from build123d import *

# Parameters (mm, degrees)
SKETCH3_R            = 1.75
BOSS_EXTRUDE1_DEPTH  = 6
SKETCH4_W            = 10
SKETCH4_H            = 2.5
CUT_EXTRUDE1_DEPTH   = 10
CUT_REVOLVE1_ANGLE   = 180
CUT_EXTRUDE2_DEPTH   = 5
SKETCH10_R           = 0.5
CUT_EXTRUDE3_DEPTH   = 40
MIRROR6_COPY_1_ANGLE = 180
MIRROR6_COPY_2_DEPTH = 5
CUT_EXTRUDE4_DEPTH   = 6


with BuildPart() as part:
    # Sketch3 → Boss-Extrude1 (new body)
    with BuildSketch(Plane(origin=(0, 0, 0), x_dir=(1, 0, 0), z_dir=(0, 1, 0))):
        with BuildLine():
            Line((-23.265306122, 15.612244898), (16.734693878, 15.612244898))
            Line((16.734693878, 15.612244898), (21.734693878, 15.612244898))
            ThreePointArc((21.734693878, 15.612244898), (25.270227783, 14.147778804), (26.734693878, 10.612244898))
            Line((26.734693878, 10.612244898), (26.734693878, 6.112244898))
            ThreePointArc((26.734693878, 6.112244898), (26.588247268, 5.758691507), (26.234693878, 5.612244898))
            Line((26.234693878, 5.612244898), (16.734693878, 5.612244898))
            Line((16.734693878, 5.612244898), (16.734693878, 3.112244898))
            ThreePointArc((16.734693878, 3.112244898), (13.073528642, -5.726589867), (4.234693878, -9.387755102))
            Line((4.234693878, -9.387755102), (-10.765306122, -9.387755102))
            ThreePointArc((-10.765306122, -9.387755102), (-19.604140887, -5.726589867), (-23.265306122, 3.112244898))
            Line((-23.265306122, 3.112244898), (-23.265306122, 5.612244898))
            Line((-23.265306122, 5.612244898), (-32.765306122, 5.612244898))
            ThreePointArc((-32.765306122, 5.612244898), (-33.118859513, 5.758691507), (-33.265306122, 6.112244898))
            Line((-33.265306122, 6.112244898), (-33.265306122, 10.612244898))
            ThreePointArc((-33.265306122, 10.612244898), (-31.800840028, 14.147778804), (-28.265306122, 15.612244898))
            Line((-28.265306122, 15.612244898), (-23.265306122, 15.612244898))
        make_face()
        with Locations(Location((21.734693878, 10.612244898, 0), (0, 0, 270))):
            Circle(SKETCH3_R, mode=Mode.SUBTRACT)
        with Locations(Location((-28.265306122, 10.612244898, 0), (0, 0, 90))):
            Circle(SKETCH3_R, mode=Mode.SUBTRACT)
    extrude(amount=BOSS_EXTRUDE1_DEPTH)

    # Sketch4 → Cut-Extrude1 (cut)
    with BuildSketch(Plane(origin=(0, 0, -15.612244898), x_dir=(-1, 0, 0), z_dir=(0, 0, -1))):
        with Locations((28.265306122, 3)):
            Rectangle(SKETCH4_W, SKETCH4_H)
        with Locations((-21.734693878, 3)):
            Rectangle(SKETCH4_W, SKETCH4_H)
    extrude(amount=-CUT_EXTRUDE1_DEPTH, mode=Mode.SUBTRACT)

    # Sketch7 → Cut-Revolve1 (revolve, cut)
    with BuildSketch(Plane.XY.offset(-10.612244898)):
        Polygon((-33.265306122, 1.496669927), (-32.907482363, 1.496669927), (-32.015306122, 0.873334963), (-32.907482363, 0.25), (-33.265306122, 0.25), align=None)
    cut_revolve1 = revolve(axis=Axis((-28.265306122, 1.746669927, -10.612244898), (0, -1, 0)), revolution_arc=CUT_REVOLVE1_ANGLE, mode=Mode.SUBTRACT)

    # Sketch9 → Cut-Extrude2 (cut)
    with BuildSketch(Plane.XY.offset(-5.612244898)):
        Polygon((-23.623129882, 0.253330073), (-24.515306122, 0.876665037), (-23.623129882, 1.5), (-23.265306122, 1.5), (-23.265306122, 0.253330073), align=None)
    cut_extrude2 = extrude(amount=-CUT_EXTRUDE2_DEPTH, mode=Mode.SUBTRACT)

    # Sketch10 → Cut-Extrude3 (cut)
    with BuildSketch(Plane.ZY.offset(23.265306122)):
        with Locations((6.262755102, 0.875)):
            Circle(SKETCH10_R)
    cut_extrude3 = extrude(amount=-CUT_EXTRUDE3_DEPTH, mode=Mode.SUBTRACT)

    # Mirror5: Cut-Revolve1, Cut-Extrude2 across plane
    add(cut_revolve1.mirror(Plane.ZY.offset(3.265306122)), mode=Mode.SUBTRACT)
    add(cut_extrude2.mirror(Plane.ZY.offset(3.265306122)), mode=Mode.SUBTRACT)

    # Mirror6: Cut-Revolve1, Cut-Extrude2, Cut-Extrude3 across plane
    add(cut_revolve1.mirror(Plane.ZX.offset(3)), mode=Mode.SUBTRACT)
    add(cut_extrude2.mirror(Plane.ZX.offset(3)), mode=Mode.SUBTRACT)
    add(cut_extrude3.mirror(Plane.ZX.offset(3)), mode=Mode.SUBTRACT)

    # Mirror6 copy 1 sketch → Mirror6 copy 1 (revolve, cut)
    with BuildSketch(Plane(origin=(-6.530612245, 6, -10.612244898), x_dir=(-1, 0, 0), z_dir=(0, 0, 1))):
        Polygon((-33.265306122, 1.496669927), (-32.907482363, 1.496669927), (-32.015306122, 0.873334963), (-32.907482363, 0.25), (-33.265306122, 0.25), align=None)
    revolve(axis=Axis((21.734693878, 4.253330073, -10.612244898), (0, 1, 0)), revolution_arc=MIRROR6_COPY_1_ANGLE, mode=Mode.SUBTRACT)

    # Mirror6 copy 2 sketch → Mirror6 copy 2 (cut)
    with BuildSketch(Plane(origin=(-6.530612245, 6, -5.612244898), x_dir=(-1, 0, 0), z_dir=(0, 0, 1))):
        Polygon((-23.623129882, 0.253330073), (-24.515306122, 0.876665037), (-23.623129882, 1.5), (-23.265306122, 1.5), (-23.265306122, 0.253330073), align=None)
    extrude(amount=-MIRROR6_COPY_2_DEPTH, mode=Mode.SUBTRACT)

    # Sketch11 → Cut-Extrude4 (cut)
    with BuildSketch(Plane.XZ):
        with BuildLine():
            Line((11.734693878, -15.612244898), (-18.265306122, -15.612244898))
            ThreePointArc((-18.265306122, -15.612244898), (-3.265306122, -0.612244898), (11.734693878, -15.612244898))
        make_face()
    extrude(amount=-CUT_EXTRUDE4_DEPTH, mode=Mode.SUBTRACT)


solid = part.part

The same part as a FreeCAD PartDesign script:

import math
import FreeCAD as App
import Part
import Sketcher
Q = App.Units.Quantity

doc = App.newDocument("Part")
body = doc.addObject("PartDesign::Body", "Body")

# Sketch on XZ plane
sketch1 = doc.addObject("Sketcher::SketchObject", "Sketch")
body.addObject(sketch1)
sketch1.AttachmentSupport = (doc.XZ_Plane, [""])
sketch1.MapMode = "FlatFace"
sketch1.addGeometry(Part.ArcOfCircle(Part.Circle(App.Vector(21.734694, -10.612245, 0), App.Vector(0, 0, 1), 5), math.radians(-90), math.radians(0)), False)
sketch1.addGeometry(Part.LineSegment(App.Vector(21.734694, -15.612245, 0), App.Vector(-28.265306, -15.612245, 0)), False)
sketch1.addGeometry(Part.ArcOfCircle(Part.Circle(App.Vector(-28.265306, -10.612245, 0), App.Vector(0, 0, 1), 5), math.radians(180), math.radians(270)), False)
sketch1.addGeometry(Part.LineSegment(App.Vector(-33.265306, -10.612245, 0), App.Vector(-33.265306, -6.112245, 0)), False)
sketch1.addGeometry(Part.ArcOfCircle(Part.Circle(App.Vector(-32.765306, -6.112245, 0), App.Vector(0, 0, 1), 0.5), math.radians(90), math.radians(180)), False)
sketch1.addGeometry(Part.LineSegment(App.Vector(-32.765306, -5.612245, 0), App.Vector(-23.265306, -5.612245, 0)), False)
sketch1.addGeometry(Part.LineSegment(App.Vector(-23.265306, -5.612245, 0), App.Vector(-23.265306, -3.112245, 0)), False)
sketch1.addGeometry(Part.ArcOfCircle(Part.Circle(App.Vector(-10.765306, -3.112245, 0), App.Vector(0, 0, 1), 12.5), math.radians(90), math.radians(180)), False)
sketch1.addGeometry(Part.LineSegment(App.Vector(-10.765306, 9.387755, 0), App.Vector(4.234694, 9.387755, 0)), False)
sketch1.addGeometry(Part.ArcOfCircle(Part.Circle(App.Vector(4.234694, -3.112245, 0), App.Vector(0, 0, 1), 12.5), math.radians(0), math.radians(90)), False)
sketch1.addGeometry(Part.LineSegment(App.Vector(16.734694, -3.112245, 0), App.Vector(16.734694, -5.612245, 0)), False)
sketch1.addGeometry(Part.LineSegment(App.Vector(16.734694, -5.612245, 0), App.Vector(26.234694, -5.612245, 0)), False)
sketch1.addGeometry(Part.ArcOfCircle(Part.Circle(App.Vector(26.234694, -6.112245, 0), App.Vector(0, 0, 1), 0.5), math.radians(0), math.radians(90)), False)
sketch1.addGeometry(Part.LineSegment(App.Vector(26.734694, -6.112245, 0), App.Vector(26.734694, -10.612245, 0)), False)
sketch1.addGeometry(Part.Circle(App.Vector(21.734694, -10.612245, 0), App.Vector(0, 0, 1), 1.75), False)
sketch1.addGeometry(Part.Circle(App.Vector(-28.265306, -10.612245, 0), App.Vector(0, 0, 1), 1.75), False)
sketch1.addConstraint(Sketcher.Constraint("Tangent", 0, 1, 1, 1))
sketch1.addConstraint(Sketcher.Constraint("Tangent", 1, 2, 2, 2))
sketch1.addConstraint(Sketcher.Constraint("Tangent", 2, 1, 3, 1))
sketch1.addConstraint(Sketcher.Constraint("Tangent", 3, 2, 4, 2))
sketch1.addConstraint(Sketcher.Constraint("Tangent", 4, 1, 5, 1))
sketch1.addConstraint(Sketcher.Constraint("Coincident", 5, 2, 6, 1))
sketch1.addConstraint(Sketcher.Constraint("Tangent", 6, 2, 7, 2))
sketch1.addConstraint(Sketcher.Constraint("Tangent", 7, 1, 8, 1))
sketch1.addConstraint(Sketcher.Constraint("Tangent", 8, 2, 9, 2))
sketch1.addConstraint(Sketcher.Constraint("Tangent", 9, 1, 10, 1))
sketch1.addConstraint(Sketcher.Constraint("Coincident", 10, 2, 11, 1))
sketch1.addConstraint(Sketcher.Constraint("Tangent", 11, 2, 12, 2))
sketch1.addConstraint(Sketcher.Constraint("Tangent", 12, 1, 13, 1))
sketch1.addConstraint(Sketcher.Constraint("Tangent", 13, 2, 0, 2))
sketch1.addConstraint(Sketcher.Constraint("Horizontal", 1))
sketch1.addConstraint(Sketcher.Constraint("Vertical", 3))
sketch1.addConstraint(Sketcher.Constraint("Horizontal", 5))
sketch1.addConstraint(Sketcher.Constraint("Vertical", 6))
sketch1.addConstraint(Sketcher.Constraint("Horizontal", 8))
sketch1.addConstraint(Sketcher.Constraint("Vertical", 10))
sketch1.addConstraint(Sketcher.Constraint("Horizontal", 11))
sketch1.addConstraint(Sketcher.Constraint("Vertical", 13))
sketch1.addConstraint(Sketcher.Constraint("Coincident", 14, 3, 0, 3))
sketch1.addConstraint(Sketcher.Constraint("Coincident", 15, 3, 2, 3))
sketch1.addConstraint(Sketcher.Constraint("Equal", 0, 2))
sketch1.addConstraint(Sketcher.Constraint("Equal", 7, 9))
sketch1.addConstraint(Sketcher.Constraint("Equal", 4, 12))
sketch1.addConstraint(Sketcher.Constraint("Equal", 14, 15))
sketch1.addConstraint(Sketcher.Constraint("Horizontal", 4, 3, 12, 3))
sketch1.addConstraint(Sketcher.Constraint("Equal", 5, 11))
sketch1.addConstraint(Sketcher.Constraint("Radius", 0, Q("5 mm")))
sketch1.addConstraint(Sketcher.Constraint("Diameter", 14, Q("3.5 mm")))
sketch1.addConstraint(Sketcher.Constraint("Radius", 4, Q("0.5 mm")))
sketch1.addConstraint(Sketcher.Constraint("Radius", 7, Q("12.5 mm")))
sketch1.addConstraint(Sketcher.Constraint("DistanceX", 1, 2, 1, 1, Q("50 mm")))
sketch1.addConstraint(Sketcher.Constraint("DistanceX", 8, 1, 8, 2, Q("15 mm")))
sketch1.addConstraint(Sketcher.Constraint("DistanceY", 3, 1, 3, 2, Q("4.5 mm")))
sketch1.addConstraint(Sketcher.Constraint("DistanceY", 6, 1, 6, 2, Q("2.5 mm")))
sketch1.addConstraint(Sketcher.Constraint("DistanceX", -1, 1, 0, 3, Q("21.734694 mm")))
sketch1.addConstraint(Sketcher.Constraint("DistanceY", 0, 3, -1, 1, Q("10.612245 mm")))
pad1 = doc.addObject("PartDesign::Pad", "Pad")
body.addObject(pad1)
pad1.Profile = sketch1
pad1.Length = 6
pad1.Reversed = True

# Sketch on XY plane
sketch2 = doc.addObject("Sketcher::SketchObject", "Sketch001")
body.addObject(sketch2)
sketch2.AttachmentSupport = (doc.XY_Plane, [""])
sketch2.MapMode = "FlatFace"
sketch2.AttachmentOffset = App.Placement(App.Vector(0, 0, -15.612245), App.Rotation())
sketch2.addGeometry(Part.LineSegment(App.Vector(-23.265306, 4.25, 0), App.Vector(-23.265306, 1.75, 0)), False)
sketch2.addGeometry(Part.LineSegment(App.Vector(-23.265306, 1.75, 0), App.Vector(-33.265306, 1.75, 0)), False)
sketch2.addGeometry(Part.LineSegment(App.Vector(-33.265306, 1.75, 0), App.Vector(-33.265306, 4.25, 0)), False)
sketch2.addGeometry(Part.LineSegment(App.Vector(-33.265306, 4.25, 0), App.Vector(-23.265306, 4.25, 0)), False)
sketch2.addGeometry(Part.LineSegment(App.Vector(26.734694, 4.25, 0), App.Vector(26.734694, 1.75, 0)), False)
sketch2.addGeometry(Part.LineSegment(App.Vector(26.734694, 1.75, 0), App.Vector(16.734694, 1.75, 0)), False)
sketch2.addGeometry(Part.LineSegment(App.Vector(16.734694, 1.75, 0), App.Vector(16.734694, 4.25, 0)), False)
sketch2.addGeometry(Part.LineSegment(App.Vector(16.734694, 4.25, 0), App.Vector(26.734694, 4.25, 0)), False)
sketch2.addConstraint(Sketcher.Constraint("Coincident", 0, 2, 1, 1))
sketch2.addConstraint(Sketcher.Constraint("Coincident", 1, 2, 2, 1))
sketch2.addConstraint(Sketcher.Constraint("Coincident", 2, 2, 3, 1))
sketch2.addConstraint(Sketcher.Constraint("Coincident", 3, 2, 0, 1))
sketch2.addConstraint(Sketcher.Constraint("Coincident", 4, 2, 5, 1))
sketch2.addConstraint(Sketcher.Constraint("Coincident", 5, 2, 6, 1))
sketch2.addConstraint(Sketcher.Constraint("Coincident", 6, 2, 7, 1))
sketch2.addConstraint(Sketcher.Constraint("Coincident", 7, 2, 4, 1))
sketch2.addConstraint(Sketcher.Constraint("Vertical", 0))
sketch2.addConstraint(Sketcher.Constraint("Horizontal", 1))
sketch2.addConstraint(Sketcher.Constraint("Vertical", 2))
sketch2.addConstraint(Sketcher.Constraint("Horizontal", 3))
sketch2.addConstraint(Sketcher.Constraint("Vertical", 4))
sketch2.addConstraint(Sketcher.Constraint("Horizontal", 5))
sketch2.addConstraint(Sketcher.Constraint("Vertical", 6))
sketch2.addConstraint(Sketcher.Constraint("Horizontal", 7))
sketch2.addConstraint(Sketcher.Constraint("Horizontal", 1, 2, 4, 2))
sketch2.addConstraint(Sketcher.Constraint("Horizontal", 3, 2, 6, 2))
sketch2.addConstraint(Sketcher.Constraint("Equal", 3, 5))
sketch2.addConstraint(Sketcher.Constraint("DistanceX", 1, 2, 1, 1, Q("10 mm")))
sketch2.addConstraint(Sketcher.Constraint("DistanceY", 0, 2, 0, 1, Q("2.5 mm")))
sketch2.addConstraint(Sketcher.Constraint("DistanceX", 0, 2, 4, 2, Q("50 mm")))
sketch2.addConstraint(Sketcher.Constraint("DistanceY", -1, 1, 0, 2, Q("1.75 mm")))
sketch2.addConstraint(Sketcher.Constraint("DistanceX", 0, 2, -1, 1, Q("23.265306 mm")))
pocket1 = doc.addObject("PartDesign::Pocket", "Pocket")
body.addObject(pocket1)
pocket1.Profile = sketch2
pocket1.Length = 10
pocket1.Reversed = True

# Sketch on XY plane
sketch3 = doc.addObject("Sketcher::SketchObject", "Sketch002")
body.addObject(sketch3)
sketch3.AttachmentSupport = (doc.XY_Plane, [""])
sketch3.MapMode = "FlatFace"
sketch3.AttachmentOffset = App.Placement(App.Vector(0, 0, -10.612245), App.Rotation())
sketch3.addGeometry(Part.LineSegment(App.Vector(-32.907482, 1.49667, 0), App.Vector(-33.265306, 1.49667, 0)), False)
sketch3.addGeometry(Part.LineSegment(App.Vector(-33.265306, 1.49667, 0), App.Vector(-33.265306, 0.25, 0)), False)
sketch3.addGeometry(Part.LineSegment(App.Vector(-33.265306, 0.25, 0), App.Vector(-32.907482, 0.25, 0)), False)
sketch3.addGeometry(Part.LineSegment(App.Vector(-32.907482, 0.25, 0), App.Vector(-32.015306, 0.873335, 0)), False)
sketch3.addGeometry(Part.LineSegment(App.Vector(-32.015306, 0.873335, 0), App.Vector(-32.907482, 1.49667, 0)), False)
sketch3.addGeometry(Part.LineSegment(App.Vector(-28.265306, 1.49667, 0), App.Vector(-28.265306, 0.25, 0)), True)  # axis
sketch3.addConstraint(Sketcher.Constraint("Coincident", 0, 2, 1, 1))
sketch3.addConstraint(Sketcher.Constraint("Coincident", 1, 2, 2, 1))
sketch3.addConstraint(Sketcher.Constraint("Coincident", 2, 2, 3, 1))
sketch3.addConstraint(Sketcher.Constraint("Coincident", 3, 2, 4, 1))
sketch3.addConstraint(Sketcher.Constraint("Coincident", 4, 2, 0, 1))
sketch3.addConstraint(Sketcher.Constraint("Horizontal", 0))
sketch3.addConstraint(Sketcher.Constraint("Vertical", 1))
sketch3.addConstraint(Sketcher.Constraint("Horizontal", 2))
sketch3.addConstraint(Sketcher.Constraint("Vertical", 5))
sketch3.addConstraint(Sketcher.Constraint("Horizontal", 4, 2, 5, 1))
sketch3.addConstraint(Sketcher.Constraint("Horizontal", 2, 2, 5, 2))
sketch3.addConstraint(Sketcher.Constraint("Vertical", 2, 2, 4, 2))
sketch3.addConstraint(Sketcher.Constraint("Equal", 3, 4))
sketch3.addConstraint(Sketcher.Constraint("DistanceX", 0, 2, 5, 1, Q("5 mm")))
sketch3.addConstraint(Sketcher.Constraint("DistanceY", -1, 1, 1, 2, Q("0.25 mm")))
sketch3.addConstraint(Sketcher.Constraint("DistanceX", 1, 2, 3, 2, Q("1.25 mm")))
sketch3.addConstraint(Sketcher.Constraint("DistanceY", 1, 2, 1, 1, Q("1.24667 mm")))
sketch3.addConstraint(Sketcher.Constraint("Distance", 3, Q("1.088359 mm")))
sketch3.addConstraint(Sketcher.Constraint("DistanceX", 0, 2, -1, 1, Q("33.265306 mm")))
groove = doc.addObject("PartDesign::Groove", "Groove")
body.addObject(groove)
groove.Profile = sketch3
groove.ReferenceAxis = (sketch3, ["Axis0"])
groove.Angle = 180

# Sketch on XY plane
sketch4 = doc.addObject("Sketcher::SketchObject", "Sketch003")
body.addObject(sketch4)
sketch4.AttachmentSupport = (doc.XY_Plane, [""])
sketch4.MapMode = "FlatFace"
sketch4.AttachmentOffset = App.Placement(App.Vector(0, 0, -5.612245), App.Rotation())
sketch4.addGeometry(Part.LineSegment(App.Vector(-24.515306, 0.876665, 0), App.Vector(-23.62313, 0.25333, 0)), False)
sketch4.addGeometry(Part.LineSegment(App.Vector(-23.62313, 0.25333, 0), App.Vector(-23.265306, 0.25333, 0)), False)
sketch4.addGeometry(Part.LineSegment(App.Vector(-23.265306, 0.25333, 0), App.Vector(-23.265306, 1.5, 0)), False)
sketch4.addGeometry(Part.LineSegment(App.Vector(-23.265306, 1.5, 0), App.Vector(-23.62313, 1.5, 0)), False)
sketch4.addGeometry(Part.LineSegment(App.Vector(-23.62313, 1.5, 0), App.Vector(-24.515306, 0.876665, 0)), False)
sketch4.addConstraint(Sketcher.Constraint("Coincident", 0, 2, 1, 1))
sketch4.addConstraint(Sketcher.Constraint("Coincident", 1, 2, 2, 1))
sketch4.addConstraint(Sketcher.Constraint("Coincident", 2, 2, 3, 1))
sketch4.addConstraint(Sketcher.Constraint("Coincident", 3, 2, 4, 1))
sketch4.addConstraint(Sketcher.Constraint("Coincident", 4, 2, 0, 1))
sketch4.addConstraint(Sketcher.Constraint("Horizontal", 1))
sketch4.addConstraint(Sketcher.Constraint("Vertical", 2))
sketch4.addConstraint(Sketcher.Constraint("Horizontal", 3))
sketch4.addConstraint(Sketcher.Constraint("Vertical", 0, 2, 3, 2))
sketch4.addConstraint(Sketcher.Constraint("Equal", 0, 4))
sketch4.addConstraint(Sketcher.Constraint("DistanceY", -1, 1, 2, 2, Q("1.5 mm")))
sketch4.addConstraint(Sketcher.Constraint("DistanceX", 4, 2, 2, 2, Q("1.25 mm")))
sketch4.addConstraint(Sketcher.Constraint("DistanceY", 2, 1, 2, 2, Q("1.24667 mm")))
sketch4.addConstraint(Sketcher.Constraint("Distance", 0, Q("1.088359 mm")))
sketch4.addConstraint(Sketcher.Constraint("DistanceX", 0, 2, -1, 1, Q("23.62313 mm")))
pocket2 = doc.addObject("PartDesign::Pocket", "Pocket001")
body.addObject(pocket2)
pocket2.Profile = sketch4
pocket2.Length = 5

# Sketch on YZ plane
sketch5 = doc.addObject("Sketcher::SketchObject", "Sketch004")
body.addObject(sketch5)
sketch5.AttachmentSupport = (doc.YZ_Plane, [""])
sketch5.MapMode = "FlatFace"
sketch5.AttachmentOffset = App.Placement(App.Vector(0, 0, -23.265306), App.Rotation())
sketch5.addGeometry(Part.Circle(App.Vector(0.875, 6.262755, 0), App.Vector(0, 0, 1), 0.5), False)
sketch5.addConstraint(Sketcher.Constraint("Diameter", 0, Q("1 mm")))
sketch5.addConstraint(Sketcher.Constraint("DistanceX", -1, 1, 0, 3, Q("0.875 mm")))
sketch5.addConstraint(Sketcher.Constraint("DistanceY", -1, 1, 0, 3, Q("6.262755 mm")))
pocket3 = doc.addObject("PartDesign::Pocket", "Pocket002")
body.addObject(pocket3)
pocket3.Profile = sketch5
pocket3.Length = 40
pocket3.Reversed = True
doc.recompute()

datumplane = doc.addObject("PartDesign::Plane", "DatumPlane")
body.addObject(datumplane)
datumplane.AttachmentSupport = (doc.YZ_Plane, [""])
datumplane.MapMode = "FlatFace"
datumplane.AttachmentOffset = App.Placement(App.Vector(0, 0, -3.265306), App.Rotation())
mirrored = doc.addObject("PartDesign::Mirrored", "Mirrored")
body.addObject(mirrored)
mirrored.Originals = [groove, pocket2]
mirrored.MirrorPlane = (datumplane, [""])
body.Tip = mirrored
doc.recompute()

datumplane2 = doc.addObject("PartDesign::Plane", "DatumPlane001")
body.addObject(datumplane2)
datumplane2.AttachmentSupport = (doc.XZ_Plane, [""])
datumplane2.MapMode = "FlatFace"
datumplane2.AttachmentOffset = App.Placement(App.Vector(0, 0, -3), App.Rotation())
mirrored2 = doc.addObject("PartDesign::Mirrored", "Mirrored001")
body.addObject(mirrored2)
mirrored2.Originals = [groove, pocket2, pocket3]
mirrored2.MirrorPlane = (datumplane2, [""])
body.Tip = mirrored2

# Sketch on XY plane
sketch6 = doc.addObject("Sketcher::SketchObject", "Sketch005")
body.addObject(sketch6)
sketch6.AttachmentSupport = (doc.XY_Plane, [""])
sketch6.MapMode = "FlatFace"
sketch6.AttachmentOffset = App.Placement(App.Vector(0, 0, -10.612245), App.Rotation())
sketch6.addGeometry(Part.LineSegment(App.Vector(26.37687, 4.50333, 0), App.Vector(26.734694, 4.50333, 0)), False)
sketch6.addGeometry(Part.LineSegment(App.Vector(26.734694, 4.50333, 0), App.Vector(26.734694, 5.75, 0)), False)
sketch6.addGeometry(Part.LineSegment(App.Vector(26.734694, 5.75, 0), App.Vector(26.37687, 5.75, 0)), False)
sketch6.addGeometry(Part.LineSegment(App.Vector(26.37687, 5.75, 0), App.Vector(25.484694, 5.126665, 0)), False)
sketch6.addGeometry(Part.LineSegment(App.Vector(25.484694, 5.126665, 0), App.Vector(26.37687, 4.50333, 0)), False)
sketch6.addGeometry(Part.LineSegment(App.Vector(21.734694, 4.50333, 0), App.Vector(21.734694, 5.75, 0)), True)  # axis
sketch6.addConstraint(Sketcher.Constraint("Coincident", 0, 2, 1, 1))
sketch6.addConstraint(Sketcher.Constraint("Coincident", 1, 2, 2, 1))
sketch6.addConstraint(Sketcher.Constraint("Coincident", 2, 2, 3, 1))
sketch6.addConstraint(Sketcher.Constraint("Coincident", 3, 2, 4, 1))
sketch6.addConstraint(Sketcher.Constraint("Coincident", 4, 2, 0, 1))
sketch6.addConstraint(Sketcher.Constraint("Horizontal", 0))
sketch6.addConstraint(Sketcher.Constraint("Vertical", 1))
sketch6.addConstraint(Sketcher.Constraint("Horizontal", 2))
sketch6.addConstraint(Sketcher.Constraint("Vertical", 5))
sketch6.addConstraint(Sketcher.Constraint("Horizontal", 4, 2, 5, 1))
sketch6.addConstraint(Sketcher.Constraint("Horizontal", 2, 2, 5, 2))
sketch6.addConstraint(Sketcher.Constraint("Vertical", 2, 2, 4, 2))
sketch6.addConstraint(Sketcher.Constraint("Equal", 3, 4))
sketch6.addConstraint(Sketcher.Constraint("DistanceX", 5, 1, 0, 2, Q("5 mm")))
sketch6.addConstraint(Sketcher.Constraint("DistanceY", -1, 1, 1, 2, Q("5.75 mm")))
sketch6.addConstraint(Sketcher.Constraint("DistanceX", 3, 2, 1, 2, Q("1.25 mm")))
sketch6.addConstraint(Sketcher.Constraint("DistanceY", 1, 1, 1, 2, Q("1.24667 mm")))
sketch6.addConstraint(Sketcher.Constraint("Distance", 3, Q("1.088359 mm")))
sketch6.addConstraint(Sketcher.Constraint("DistanceX", -1, 1, 2, 2, Q("26.37687 mm")))
groove2 = doc.addObject("PartDesign::Groove", "Groove001")
body.addObject(groove2)
groove2.Profile = sketch6
groove2.ReferenceAxis = (sketch6, ["Axis0"])
groove2.Angle = 180

# Sketch on XY plane
sketch7 = doc.addObject("Sketcher::SketchObject", "Sketch006")
body.addObject(sketch7)
sketch7.AttachmentSupport = (doc.XY_Plane, [""])
sketch7.MapMode = "FlatFace"
sketch7.AttachmentOffset = App.Placement(App.Vector(0, 0, -5.612245), App.Rotation())
sketch7.addGeometry(Part.LineSegment(App.Vector(17.984694, 5.123335, 0), App.Vector(17.092518, 5.74667, 0)), False)
sketch7.addGeometry(Part.LineSegment(App.Vector(17.092518, 5.74667, 0), App.Vector(16.734694, 5.74667, 0)), False)
sketch7.addGeometry(Part.LineSegment(App.Vector(16.734694, 5.74667, 0), App.Vector(16.734694, 4.5, 0)), False)
sketch7.addGeometry(Part.LineSegment(App.Vector(16.734694, 4.5, 0), App.Vector(17.092518, 4.5, 0)), False)
sketch7.addGeometry(Part.LineSegment(App.Vector(17.092518, 4.5, 0), App.Vector(17.984694, 5.123335, 0)), False)
sketch7.addConstraint(Sketcher.Constraint("Coincident", 0, 2, 1, 1))
sketch7.addConstraint(Sketcher.Constraint("Coincident", 1, 2, 2, 1))
sketch7.addConstraint(Sketcher.Constraint("Coincident", 2, 2, 3, 1))
sketch7.addConstraint(Sketcher.Constraint("Coincident", 3, 2, 4, 1))
sketch7.addConstraint(Sketcher.Constraint("Coincident", 4, 2, 0, 1))
sketch7.addConstraint(Sketcher.Constraint("Horizontal", 1))
sketch7.addConstraint(Sketcher.Constraint("Vertical", 2))
sketch7.addConstraint(Sketcher.Constraint("Horizontal", 3))
sketch7.addConstraint(Sketcher.Constraint("Vertical", 0, 2, 3, 2))
sketch7.addConstraint(Sketcher.Constraint("Equal", 0, 4))
sketch7.addConstraint(Sketcher.Constraint("DistanceY", -1, 1, 2, 2, Q("4.5 mm")))
sketch7.addConstraint(Sketcher.Constraint("DistanceX", 2, 2, 4, 2, Q("1.25 mm")))
sketch7.addConstraint(Sketcher.Constraint("DistanceY", 2, 2, 2, 1, Q("1.24667 mm")))
sketch7.addConstraint(Sketcher.Constraint("Distance", 0, Q("1.088359 mm")))
sketch7.addConstraint(Sketcher.Constraint("DistanceX", -1, 1, 0, 2, Q("17.092518 mm")))
pocket4 = doc.addObject("PartDesign::Pocket", "Pocket003")
body.addObject(pocket4)
pocket4.Profile = sketch7
pocket4.Length = 5

# Sketch on XZ plane
sketch8 = doc.addObject("Sketcher::SketchObject", "Sketch007")
body.addObject(sketch8)
sketch8.AttachmentSupport = (doc.XZ_Plane, [""])
sketch8.MapMode = "FlatFace"
sketch8.addGeometry(Part.LineSegment(App.Vector(-18.265306, -15.612245, 0), App.Vector(11.734694, -15.612245, 0)), False)
sketch8.addGeometry(Part.ArcOfCircle(Part.Circle(App.Vector(-3.265306, -15.612245, 0), App.Vector(0, 0, 1), 15), math.radians(0), math.radians(180)), False)
sketch8.addConstraint(Sketcher.Constraint("Coincident", 0, 1, 1, 2))
sketch8.addConstraint(Sketcher.Constraint("Coincident", 1, 1, 0, 2))
sketch8.addConstraint(Sketcher.Constraint("Horizontal", 0))
sketch8.addConstraint(Sketcher.Constraint("Horizontal", 1, 3, 0, 1))
sketch8.addConstraint(Sketcher.Constraint("Radius", 1, Q("15 mm")))
sketch8.addConstraint(Sketcher.Constraint("DistanceX", 1, 3, -1, 1, Q("3.265306 mm")))
sketch8.addConstraint(Sketcher.Constraint("DistanceY", 1, 3, -1, 1, Q("15.612245 mm")))
pocket5 = doc.addObject("PartDesign::Pocket", "Pocket004")
body.addObject(pocket5)
pocket5.Profile = sketch8
pocket5.Length = 6

doc.recompute()
